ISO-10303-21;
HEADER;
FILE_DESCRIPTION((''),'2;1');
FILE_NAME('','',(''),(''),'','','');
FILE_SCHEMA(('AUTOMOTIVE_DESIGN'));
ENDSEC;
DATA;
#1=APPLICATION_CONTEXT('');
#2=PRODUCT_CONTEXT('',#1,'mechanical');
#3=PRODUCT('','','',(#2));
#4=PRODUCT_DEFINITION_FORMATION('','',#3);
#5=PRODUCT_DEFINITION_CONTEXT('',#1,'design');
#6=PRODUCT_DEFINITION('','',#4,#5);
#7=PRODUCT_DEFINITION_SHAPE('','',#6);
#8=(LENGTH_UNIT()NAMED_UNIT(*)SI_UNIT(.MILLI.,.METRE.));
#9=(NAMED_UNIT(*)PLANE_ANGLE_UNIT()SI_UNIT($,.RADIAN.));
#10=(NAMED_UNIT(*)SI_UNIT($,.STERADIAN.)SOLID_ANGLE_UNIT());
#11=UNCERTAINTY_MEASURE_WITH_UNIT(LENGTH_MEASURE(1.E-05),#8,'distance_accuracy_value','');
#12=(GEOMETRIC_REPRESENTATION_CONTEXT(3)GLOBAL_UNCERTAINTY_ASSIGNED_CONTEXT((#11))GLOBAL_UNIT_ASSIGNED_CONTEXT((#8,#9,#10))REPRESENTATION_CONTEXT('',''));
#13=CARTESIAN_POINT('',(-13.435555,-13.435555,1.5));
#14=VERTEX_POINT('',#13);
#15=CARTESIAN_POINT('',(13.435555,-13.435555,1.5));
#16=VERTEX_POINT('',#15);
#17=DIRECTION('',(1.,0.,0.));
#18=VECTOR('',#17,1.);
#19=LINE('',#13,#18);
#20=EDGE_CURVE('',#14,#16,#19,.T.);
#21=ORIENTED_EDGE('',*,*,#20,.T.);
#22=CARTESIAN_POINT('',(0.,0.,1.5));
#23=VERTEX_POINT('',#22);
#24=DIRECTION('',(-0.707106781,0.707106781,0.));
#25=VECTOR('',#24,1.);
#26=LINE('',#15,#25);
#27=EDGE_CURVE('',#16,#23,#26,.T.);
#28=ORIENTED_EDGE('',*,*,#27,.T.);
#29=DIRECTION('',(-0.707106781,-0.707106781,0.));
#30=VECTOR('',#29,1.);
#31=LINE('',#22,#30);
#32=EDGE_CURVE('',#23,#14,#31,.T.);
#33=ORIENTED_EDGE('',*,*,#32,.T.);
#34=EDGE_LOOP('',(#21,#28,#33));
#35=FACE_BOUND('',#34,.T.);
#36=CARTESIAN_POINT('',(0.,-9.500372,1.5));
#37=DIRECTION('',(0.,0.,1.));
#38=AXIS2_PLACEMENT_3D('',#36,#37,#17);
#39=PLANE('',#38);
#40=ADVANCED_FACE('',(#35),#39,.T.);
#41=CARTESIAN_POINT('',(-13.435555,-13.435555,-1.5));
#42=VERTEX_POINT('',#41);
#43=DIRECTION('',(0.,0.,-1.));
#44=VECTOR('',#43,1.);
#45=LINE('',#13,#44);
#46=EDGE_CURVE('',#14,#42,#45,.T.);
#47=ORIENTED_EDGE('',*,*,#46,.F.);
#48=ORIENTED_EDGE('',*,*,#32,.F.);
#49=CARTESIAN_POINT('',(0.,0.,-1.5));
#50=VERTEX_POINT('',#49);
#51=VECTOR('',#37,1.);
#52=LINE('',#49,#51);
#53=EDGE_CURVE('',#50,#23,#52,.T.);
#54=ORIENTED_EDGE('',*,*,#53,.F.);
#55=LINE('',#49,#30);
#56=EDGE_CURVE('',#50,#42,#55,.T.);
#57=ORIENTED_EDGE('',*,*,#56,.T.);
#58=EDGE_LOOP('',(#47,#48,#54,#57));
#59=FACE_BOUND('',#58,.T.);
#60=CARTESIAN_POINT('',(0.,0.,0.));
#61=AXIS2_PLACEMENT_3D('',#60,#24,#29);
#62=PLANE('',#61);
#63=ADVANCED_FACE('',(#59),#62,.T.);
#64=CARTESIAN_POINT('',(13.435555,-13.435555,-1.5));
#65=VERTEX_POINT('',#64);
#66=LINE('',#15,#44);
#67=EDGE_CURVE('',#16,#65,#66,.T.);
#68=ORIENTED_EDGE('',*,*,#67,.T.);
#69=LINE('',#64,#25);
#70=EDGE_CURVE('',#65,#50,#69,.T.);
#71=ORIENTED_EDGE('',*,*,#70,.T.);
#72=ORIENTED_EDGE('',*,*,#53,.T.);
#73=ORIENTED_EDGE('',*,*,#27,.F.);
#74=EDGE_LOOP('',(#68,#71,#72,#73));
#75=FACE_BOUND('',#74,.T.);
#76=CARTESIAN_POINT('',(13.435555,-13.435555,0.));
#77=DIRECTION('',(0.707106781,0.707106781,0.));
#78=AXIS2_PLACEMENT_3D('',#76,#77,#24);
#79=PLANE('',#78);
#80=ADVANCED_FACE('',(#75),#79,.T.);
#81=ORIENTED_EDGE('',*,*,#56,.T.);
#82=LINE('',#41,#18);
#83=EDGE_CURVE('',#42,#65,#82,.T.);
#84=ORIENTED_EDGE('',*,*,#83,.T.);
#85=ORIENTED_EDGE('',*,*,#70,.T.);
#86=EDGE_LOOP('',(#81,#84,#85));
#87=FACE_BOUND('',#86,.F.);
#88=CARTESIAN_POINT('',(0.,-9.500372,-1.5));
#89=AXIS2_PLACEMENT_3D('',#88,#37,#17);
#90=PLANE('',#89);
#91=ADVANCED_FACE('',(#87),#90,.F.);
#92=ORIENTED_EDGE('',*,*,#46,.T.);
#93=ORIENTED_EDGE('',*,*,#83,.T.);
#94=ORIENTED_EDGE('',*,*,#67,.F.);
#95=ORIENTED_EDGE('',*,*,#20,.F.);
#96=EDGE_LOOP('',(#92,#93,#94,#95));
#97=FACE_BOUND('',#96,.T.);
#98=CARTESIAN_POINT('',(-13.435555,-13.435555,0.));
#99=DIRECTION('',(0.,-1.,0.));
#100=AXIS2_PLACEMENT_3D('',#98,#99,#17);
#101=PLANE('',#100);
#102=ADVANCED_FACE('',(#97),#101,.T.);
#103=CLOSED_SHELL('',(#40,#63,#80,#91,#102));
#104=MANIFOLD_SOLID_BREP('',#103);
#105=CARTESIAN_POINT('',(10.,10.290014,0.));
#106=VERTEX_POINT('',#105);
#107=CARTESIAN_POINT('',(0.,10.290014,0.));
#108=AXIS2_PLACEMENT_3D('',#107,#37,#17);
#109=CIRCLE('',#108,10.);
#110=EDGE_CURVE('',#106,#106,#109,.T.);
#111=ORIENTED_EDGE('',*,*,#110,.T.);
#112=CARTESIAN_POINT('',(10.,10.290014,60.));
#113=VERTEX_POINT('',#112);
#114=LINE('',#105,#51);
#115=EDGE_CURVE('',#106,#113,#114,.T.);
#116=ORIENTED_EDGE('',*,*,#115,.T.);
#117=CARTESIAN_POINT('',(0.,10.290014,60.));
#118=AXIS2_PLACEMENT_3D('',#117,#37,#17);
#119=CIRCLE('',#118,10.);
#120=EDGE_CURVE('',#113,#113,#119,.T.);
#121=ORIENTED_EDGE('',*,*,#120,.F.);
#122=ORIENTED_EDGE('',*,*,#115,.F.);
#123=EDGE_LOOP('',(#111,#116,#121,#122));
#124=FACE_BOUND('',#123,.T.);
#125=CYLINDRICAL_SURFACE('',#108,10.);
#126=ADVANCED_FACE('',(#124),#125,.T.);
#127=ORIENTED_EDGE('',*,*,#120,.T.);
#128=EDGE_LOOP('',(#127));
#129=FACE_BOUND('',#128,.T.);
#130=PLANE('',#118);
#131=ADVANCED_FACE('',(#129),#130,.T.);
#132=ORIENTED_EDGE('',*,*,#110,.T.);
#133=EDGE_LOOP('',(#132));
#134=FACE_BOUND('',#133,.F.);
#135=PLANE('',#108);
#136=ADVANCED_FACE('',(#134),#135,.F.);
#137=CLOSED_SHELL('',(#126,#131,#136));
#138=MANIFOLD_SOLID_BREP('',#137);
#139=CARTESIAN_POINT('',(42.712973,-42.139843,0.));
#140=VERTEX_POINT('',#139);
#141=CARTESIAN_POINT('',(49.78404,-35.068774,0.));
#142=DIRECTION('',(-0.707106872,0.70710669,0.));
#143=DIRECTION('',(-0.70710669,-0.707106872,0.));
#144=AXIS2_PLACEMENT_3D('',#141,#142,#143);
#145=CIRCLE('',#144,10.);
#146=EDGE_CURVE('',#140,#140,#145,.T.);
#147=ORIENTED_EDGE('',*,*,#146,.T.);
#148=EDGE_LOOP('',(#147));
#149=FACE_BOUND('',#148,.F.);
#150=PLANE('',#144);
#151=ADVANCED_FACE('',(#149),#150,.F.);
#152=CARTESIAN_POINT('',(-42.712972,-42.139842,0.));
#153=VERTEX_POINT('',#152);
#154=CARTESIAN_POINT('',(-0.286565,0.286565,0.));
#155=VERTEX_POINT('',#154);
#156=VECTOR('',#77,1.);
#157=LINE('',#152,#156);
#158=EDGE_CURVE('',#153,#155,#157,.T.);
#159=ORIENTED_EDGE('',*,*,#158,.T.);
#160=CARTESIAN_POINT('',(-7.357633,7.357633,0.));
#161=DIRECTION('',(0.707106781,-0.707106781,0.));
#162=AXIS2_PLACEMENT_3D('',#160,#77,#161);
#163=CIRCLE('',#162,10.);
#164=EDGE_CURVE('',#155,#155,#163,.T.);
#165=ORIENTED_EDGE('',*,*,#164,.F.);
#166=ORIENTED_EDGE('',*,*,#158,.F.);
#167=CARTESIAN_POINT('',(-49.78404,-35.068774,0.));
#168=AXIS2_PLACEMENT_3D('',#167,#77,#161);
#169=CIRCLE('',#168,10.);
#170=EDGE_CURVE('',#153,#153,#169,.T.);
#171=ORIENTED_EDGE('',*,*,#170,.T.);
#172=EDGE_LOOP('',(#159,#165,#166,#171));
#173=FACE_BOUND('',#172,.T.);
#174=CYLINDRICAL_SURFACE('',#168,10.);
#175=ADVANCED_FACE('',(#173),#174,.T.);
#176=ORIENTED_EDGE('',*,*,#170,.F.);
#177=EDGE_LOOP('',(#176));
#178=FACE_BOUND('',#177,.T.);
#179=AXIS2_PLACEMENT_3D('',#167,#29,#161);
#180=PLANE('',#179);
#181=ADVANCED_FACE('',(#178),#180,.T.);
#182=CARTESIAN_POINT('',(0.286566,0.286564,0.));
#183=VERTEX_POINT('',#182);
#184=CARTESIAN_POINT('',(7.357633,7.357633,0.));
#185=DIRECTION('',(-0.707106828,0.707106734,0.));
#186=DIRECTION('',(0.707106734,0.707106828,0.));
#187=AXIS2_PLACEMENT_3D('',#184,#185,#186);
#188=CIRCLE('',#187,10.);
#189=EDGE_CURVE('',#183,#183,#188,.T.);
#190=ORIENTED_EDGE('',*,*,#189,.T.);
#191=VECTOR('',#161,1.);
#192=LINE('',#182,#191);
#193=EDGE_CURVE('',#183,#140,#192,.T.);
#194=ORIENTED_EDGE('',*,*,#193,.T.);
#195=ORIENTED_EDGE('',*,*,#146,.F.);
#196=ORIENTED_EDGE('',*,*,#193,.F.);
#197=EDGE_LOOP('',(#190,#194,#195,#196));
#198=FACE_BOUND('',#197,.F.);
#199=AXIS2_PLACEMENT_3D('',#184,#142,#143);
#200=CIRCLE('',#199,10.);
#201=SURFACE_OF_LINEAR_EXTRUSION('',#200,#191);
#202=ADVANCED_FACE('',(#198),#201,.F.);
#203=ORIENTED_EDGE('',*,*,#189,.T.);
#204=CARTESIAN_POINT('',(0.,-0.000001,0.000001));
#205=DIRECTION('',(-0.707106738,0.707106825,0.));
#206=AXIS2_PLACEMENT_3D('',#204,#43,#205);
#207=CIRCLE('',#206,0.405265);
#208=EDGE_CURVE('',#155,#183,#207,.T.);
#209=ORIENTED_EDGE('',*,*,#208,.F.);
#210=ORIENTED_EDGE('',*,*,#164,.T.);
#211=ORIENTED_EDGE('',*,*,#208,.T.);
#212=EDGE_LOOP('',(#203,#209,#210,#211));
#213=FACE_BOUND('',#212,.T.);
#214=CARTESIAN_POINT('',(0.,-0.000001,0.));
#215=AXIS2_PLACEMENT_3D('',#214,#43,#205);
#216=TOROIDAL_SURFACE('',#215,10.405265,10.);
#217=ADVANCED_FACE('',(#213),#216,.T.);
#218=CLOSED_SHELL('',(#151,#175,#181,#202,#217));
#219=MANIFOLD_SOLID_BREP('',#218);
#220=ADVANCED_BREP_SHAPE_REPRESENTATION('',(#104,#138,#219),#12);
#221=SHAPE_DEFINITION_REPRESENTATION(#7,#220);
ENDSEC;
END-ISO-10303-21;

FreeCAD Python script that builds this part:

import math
import FreeCAD as App
import Part
import Sketcher
Q = App.Units.Quantity

doc = App.newDocument("Part")
body = doc.addObject("PartDesign::Body", "Body")

# Sketch on XY plane
sketch1 = doc.addObject("Sketcher::SketchObject", "Sketch")
body.addObject(sketch1)
sketch1.AttachmentSupport = (doc.XY_Plane, [""])
sketch1.MapMode = "FlatFace"
sketch1.AttachmentOffset = App.Placement(App.Vector(0, 0, 60), App.Rotation())
sketch1.addGeometry(Part.Circle(App.Vector(0, 10.290014, 0), App.Vector(0, 0, 1), 10), False)
sketch1.addConstraint([
    Sketcher.Constraint("PointOnObject", 0, 3, -2),
    Sketcher.Constraint("Diameter", 0, Q("20 mm")),
    Sketcher.Constraint("DistanceY", -1, 1, 0, 3, Q("10.290014 mm")),
])

# Sketch on XZ plane
sketch2 = doc.addObject("Sketcher::SketchObject", "Sketch001")
body.addObject(sketch2)
sketch2.AttachmentSupport = (doc.XZ_Plane, [""])
sketch2.MapMode = "FlatFace"
sketch2.AttachmentOffset = App.Placement(App.Vector(0, 0, -10), App.Rotation())
sketch2.addGeometry(Part.LineSegment(App.Vector(0, 0, 0), App.Vector(0, 60, 0)), False)
sketch2.addConstraint([
    Sketcher.Constraint("Vertical", 0),
    Sketcher.Constraint("Coincident", 0, 1, -1, 1),
    Sketcher.Constraint("DistanceY", 0, 1, 0, 2, Q("60 mm")),
])
doc.recompute()

additivepipe = doc.addObject("PartDesign::AdditivePipe", "AdditivePipe")
body.addObject(additivepipe)
additivepipe.Profile = sketch1
additivepipe.Spine = (sketch2, ["Edge1"])
body2 = doc.addObject("PartDesign::Body", "Body001")

# Sketch on an angled plane
sketch3 = doc.addObject("Sketcher::SketchObject", "Sketch002")
body2.addObject(sketch3)
sketch3.Placement = App.Placement(App.Vector(-42.426407, -42.426407, 0), App.Rotation(App.Vector(0.707106781, -0.707106781, 0), App.Vector(0, 0, 0.999999999), App.Vector(-0.707106781, -0.707106781, 0), "ZXY"))
sketch3.addGeometry(Part.Circle(App.Vector(-10.405264, 0, 0), App.Vector(0, 0, 1), 10), False)
sketch3.addConstraint([
    Sketcher.Constraint("PointOnObject", 0, 3, -1),
    Sketcher.Constraint("Diameter", 0, Q("20 mm")),
    Sketcher.Constraint("DistanceX", 0, 3, -1, 1, Q("10.405264 mm")),
])

# Sketch on XY plane
sketch4 = doc.addObject("Sketcher::SketchObject", "Sketch003")
body2.addObject(sketch4)
sketch4.AttachmentSupport = (doc.getObject("XY_Plane001"), [""])
sketch4.MapMode = "FlatFace"
sketch4.addGeometry([
    Part.LineSegment(App.Vector(-49.497475, -35.355339, 0), App.Vector(-7.071068, 7.071068, 0)),
    Part.ArcOfCircle(Part.Circle(App.Vector(0, -0.000001, 0), App.Vector(0, 0, 1), 10.000001), math.radians(45.000004), math.radians(134.999996)),
    Part.LineSegment(App.Vector(7.071068, 7.071068, 0), App.Vector(49.497475, -35.355339, 0)),
], False)
sketch4.addConstraint([
    Sketcher.Constraint("Tangent", 0, 2, 1, 2),
    Sketcher.Constraint("Tangent", 1, 1, 2, 1),
    Sketcher.Constraint("Coincident", 1, 3, -1, 1),
    Sketcher.Constraint("Symmetric", 0, 1, 2, 2, -2),
    Sketcher.Constraint("Perpendicular", 0, 2),
    Sketcher.Constraint("Radius", 1, Q("10.000001 mm")),
    Sketcher.Constraint("Distance", 0, Q("60 mm")),
])
doc.recompute()

additivepipe2 = doc.addObject("PartDesign::AdditivePipe", "AdditivePipe001")
body2.addObject(additivepipe2)
additivepipe2.Profile = sketch3
additivepipe2.Spine = (sketch4, ["Edge1", "Edge2", "Edge3"])
body3 = doc.addObject("PartDesign::Body", "Body002")

# Sketch on XY plane
sketch5 = doc.addObject("Sketcher::SketchObject", "Sketch004")
body3.addObject(sketch5)
sketch5.AttachmentSupport = (doc.getObject("XY_Plane002"), [""])
sketch5.MapMode = "FlatFace"
sketch5.addGeometry([
    Part.LineSegment(App.Vector(13.435555, -13.435555, 0), App.Vector(0, 0, 0)),
    Part.LineSegment(App.Vector(0, 0, 0), App.Vector(-13.435555, -13.435555, 0)),
    Part.LineSegment(App.Vector(-13.435555, -13.435555, 0), App.Vector(13.435555, -13.435555, 0)),
], False)
sketch5.addConstraint([
    Sketcher.Constraint("Coincident", 0, 2, 1, 1),
    Sketcher.Constraint("Coincident", 1, 2, 2, 1),
    Sketcher.Constraint("Coincident", 2, 2, 0, 1),
    Sketcher.Constraint("Horizontal", 2),
    Sketcher.Constraint("Coincident", 0, 2, -1, 1),
    Sketcher.Constraint("Perpendicular", 0, 1),
    Sketcher.Constraint("Equal", 0, 1),
    Sketcher.Constraint("DistanceX", 2, 1, 2, 2, Q("26.87111 mm")),
])
pad1 = doc.addObject("PartDesign::Pad", "Pad")
body3.addObject(pad1)
pad1.Profile = sketch5
pad1.Length = 3
pad1.Midplane = True

doc.recompute()
